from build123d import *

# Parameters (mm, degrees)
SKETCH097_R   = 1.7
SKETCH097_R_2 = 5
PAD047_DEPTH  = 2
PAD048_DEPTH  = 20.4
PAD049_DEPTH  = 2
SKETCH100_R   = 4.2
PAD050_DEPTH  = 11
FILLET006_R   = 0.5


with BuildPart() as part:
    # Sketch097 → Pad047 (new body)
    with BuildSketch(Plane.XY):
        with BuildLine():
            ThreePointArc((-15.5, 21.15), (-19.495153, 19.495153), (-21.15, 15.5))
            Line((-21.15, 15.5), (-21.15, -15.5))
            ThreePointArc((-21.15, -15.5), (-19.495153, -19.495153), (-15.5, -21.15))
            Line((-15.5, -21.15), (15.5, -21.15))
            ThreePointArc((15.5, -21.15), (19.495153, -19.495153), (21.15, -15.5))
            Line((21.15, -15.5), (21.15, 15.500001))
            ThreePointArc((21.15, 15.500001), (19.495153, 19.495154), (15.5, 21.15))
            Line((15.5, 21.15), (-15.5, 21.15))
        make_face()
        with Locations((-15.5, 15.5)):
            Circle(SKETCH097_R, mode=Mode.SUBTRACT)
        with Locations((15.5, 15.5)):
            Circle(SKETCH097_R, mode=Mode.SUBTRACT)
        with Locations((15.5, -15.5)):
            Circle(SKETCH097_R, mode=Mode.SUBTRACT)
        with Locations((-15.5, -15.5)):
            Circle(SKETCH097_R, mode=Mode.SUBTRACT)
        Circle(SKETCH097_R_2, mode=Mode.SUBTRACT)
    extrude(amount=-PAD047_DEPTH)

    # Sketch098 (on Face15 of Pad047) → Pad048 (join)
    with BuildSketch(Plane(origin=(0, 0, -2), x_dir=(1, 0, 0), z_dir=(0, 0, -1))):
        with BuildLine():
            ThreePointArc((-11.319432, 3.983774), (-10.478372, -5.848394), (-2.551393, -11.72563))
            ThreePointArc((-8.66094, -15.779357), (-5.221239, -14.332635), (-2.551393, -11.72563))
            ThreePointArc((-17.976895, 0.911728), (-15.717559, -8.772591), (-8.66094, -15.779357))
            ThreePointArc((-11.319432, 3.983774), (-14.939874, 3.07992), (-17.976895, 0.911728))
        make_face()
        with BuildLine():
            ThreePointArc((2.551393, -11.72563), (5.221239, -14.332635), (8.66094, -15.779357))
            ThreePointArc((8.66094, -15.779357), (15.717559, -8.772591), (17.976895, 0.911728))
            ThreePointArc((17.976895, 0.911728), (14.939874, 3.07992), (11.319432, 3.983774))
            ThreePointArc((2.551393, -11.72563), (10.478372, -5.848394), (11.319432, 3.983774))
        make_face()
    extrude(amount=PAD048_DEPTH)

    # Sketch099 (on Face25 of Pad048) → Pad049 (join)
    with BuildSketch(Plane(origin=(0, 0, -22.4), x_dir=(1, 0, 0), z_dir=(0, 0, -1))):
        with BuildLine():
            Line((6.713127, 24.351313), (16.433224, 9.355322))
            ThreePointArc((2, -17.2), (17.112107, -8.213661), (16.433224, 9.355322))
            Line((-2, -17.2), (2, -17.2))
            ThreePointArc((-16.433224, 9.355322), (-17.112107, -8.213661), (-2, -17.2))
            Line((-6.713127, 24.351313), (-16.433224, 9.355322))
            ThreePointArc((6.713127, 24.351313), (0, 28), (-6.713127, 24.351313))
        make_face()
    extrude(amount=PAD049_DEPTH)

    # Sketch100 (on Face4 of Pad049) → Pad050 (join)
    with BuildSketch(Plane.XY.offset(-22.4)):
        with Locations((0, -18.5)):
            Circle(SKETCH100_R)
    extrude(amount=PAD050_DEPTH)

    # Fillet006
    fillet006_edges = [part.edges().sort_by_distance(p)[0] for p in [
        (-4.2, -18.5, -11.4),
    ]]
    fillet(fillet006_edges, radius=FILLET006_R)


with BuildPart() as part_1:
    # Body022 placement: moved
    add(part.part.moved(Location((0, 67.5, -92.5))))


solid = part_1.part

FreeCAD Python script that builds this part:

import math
import FreeCAD as App
import Part
import Sketcher

V = App.Vector


def edges_at(feature, points):
    """Names of the edges that pass closest to the given points."""
    edges = feature.Shape.Edges
    near = lambda p: min(range(len(edges)), key=lambda i: edges[i].distToShape(Part.Vertex(*p))[0])
    return sorted({f"Edge{near(p) + 1}" for p in points})

doc = App.newDocument("Part")
body = doc.addObject("PartDesign::Body", "Body")

# Sketch on XY plane
sketch1 = doc.addObject("Sketcher::SketchObject", "Sketch")
body.addObject(sketch1)
sketch1.AttachmentSupport = (doc.XY_Plane, [""])
sketch1.MapMode = "FlatFace"
sketch1.addGeometry(Part.ArcOfCircle(Part.Circle(V(-15.5, 15.5, 0), V(0, 0, 1), 5.7), math.radians(90), math.radians(180)), False)
sketch1.addGeometry(Part.LineSegment(V(-21.1, 15.5, 0), V(-21.1, -15.5, 0)), False)
sketch1.addGeometry(Part.ArcOfCircle(Part.Circle(V(-15.5, -15.5, 0), V(0, 0, 1), 5.7), math.radians(-180), math.radians(-90)), False)
sketch1.addGeometry(Part.LineSegment(V(-15.5, -21.1, 0), V(15.5, -21.1, 0)), False)
sketch1.addGeometry(Part.ArcOfCircle(Part.Circle(V(15.5, -15.5, 0), V(0, 0, 1), 5.7), math.radians(-90), math.radians(0)), False)
sketch1.addGeometry(Part.LineSegment(V(21.1, -15.5, 0), V(21.1, 15.5, 0)), False)
sketch1.addGeometry(Part.ArcOfCircle(Part.Circle(V(15.5, 15.5, 0), V(0, 0, 1), 5.6), math.radians(0), math.radians(90)), False)
sketch1.addGeometry(Part.LineSegment(V(15.5, 21.1, 0), V(-15.5, 21.1, 0)), False)
sketch1.addGeometry(Part.Circle(V(-15.5, -15.5, 0), V(0, 0, 1), 1.7), False)
sketch1.addGeometry(Part.Circle(V(15.5, -15.5, 0), V(0, 0, 1), 1.7), False)
sketch1.addGeometry(Part.Circle(V(-15.5, 15.5, 0), V(0, 0, 1), 1.7), False)
sketch1.addGeometry(Part.Circle(V(0, 0, 0), V(0, 0, 1), 5), False)
sketch1.addGeometry(Part.Circle(V(15.5, 15.5, 0), V(0, 0, 1), 1.7), False)
sketch1.addConstraint(Sketcher.Constraint("Tangent", 0, 2, 1, 1))
sketch1.addConstraint(Sketcher.Constraint("Tangent", 1, 2, 2, 1))
sketch1.addConstraint(Sketcher.Constraint("Tangent", 2, 2, 3, 1))
sketch1.addConstraint(Sketcher.Constraint("Tangent", 3, 2, 4, 1))
sketch1.addConstraint(Sketcher.Constraint("Tangent", 4, 2, 5, 1))
sketch1.addConstraint(Sketcher.Constraint("Tangent", 5, 2, 6, 1))
sketch1.addConstraint(Sketcher.Constraint("Tangent", 6, 2, 7, 1))
sketch1.addConstraint(Sketcher.Constraint("Tangent", 7, 2, 0, 1))
sketch1.addConstraint(Sketcher.Constraint("Vertical", 1))
sketch1.addConstraint(Sketcher.Constraint("Horizontal", 3))
sketch1.addConstraint(Sketcher.Constraint("Vertical", 5))
sketch1.addConstraint(Sketcher.Constraint("Horizontal", 7))
sketch1.addConstraint(Sketcher.Constraint("Coincident", 11, 3, -1, 1))
sketch1.addConstraint(Sketcher.Constraint("Coincident", 8, 3, 2, 3))
sketch1.addConstraint(Sketcher.Constraint("Coincident", 9, 3, 4, 3))
sketch1.addConstraint(Sketcher.Constraint("Coincident", 10, 3, 0, 3))
sketch1.addConstraint(Sketcher.Constraint("Coincident", 12, 3, 6, 3))
sketch1.addConstraint(Sketcher.Constraint("Equal", 0, 2))
sketch1.addConstraint(Sketcher.Constraint("Equal", 2, 4))
sketch1.addConstraint(Sketcher.Constraint("Equal", 4, 6))
sketch1.addConstraint(Sketcher.Constraint("Equal", 8, 9))
sketch1.addConstraint(Sketcher.Constraint("Equal", 9, 10))
sketch1.addConstraint(Sketcher.Constraint("Equal", 10, 12))
sketch1.addConstraint(Sketcher.Constraint("Symmetric", 0, 3, 4, 3, -1, 1))
sketch1.addConstraint(Sketcher.Constraint("Equal", 7, 1))
sketch1.addConstraint(Sketcher.Constraint("Diameter", 11, 10.0))
sketch1.addConstraint(Sketcher.Constraint("Diameter", 8, 3.4))
sketch1.addConstraint(Sketcher.Constraint("DistanceX", 3, 1, 3, 2, 31.0))
sketch1.addConstraint(Sketcher.Constraint("Radius", 0, 5.650001))
pad1 = doc.addObject("PartDesign::Pad", "Pad")
body.addObject(pad1)
pad1.Profile = sketch1
pad1.Length = 2
pad1.Reversed = True

# Sketch on XY plane
sketch2 = doc.addObject("Sketcher::SketchObject", "Sketch001")
body.addObject(sketch2)
sketch2.AttachmentSupport = (doc.XY_Plane, [""])
sketch2.MapMode = "FlatFace"
sketch2.AttachmentOffset = App.Placement(V(0, 0, -2), App.Rotation())
sketch2.addGeometry(Part.ArcOfCircle(Part.Circle(V(0, 0, 0), V(0, 0, 1), 12), math.radians(102), math.radians(199)), False)
sketch2.addGeometry(Part.ArcOfCircle(Part.Circle(V(-11, 6, 0), V(0, 0, 1), 10), math.radians(-136), math.radians(-93)), False)
sketch2.addGeometry(Part.ArcOfCircle(Part.Circle(V(0, 0, 0), V(0, 0, 1), 18), math.radians(119), math.radians(183)), False)
sketch2.addGeometry(Part.ArcOfCircle(Part.Circle(V(-11, 6, 0), V(0, 0, 1), 10), math.radians(35), math.radians(78)), False)
sketch2.addGeometry(Part.ArcOfCircle(Part.Circle(V(11, 6, 0), V(0, 0, 1), 10), math.radians(102), math.radians(145)), False)
sketch2.addGeometry(Part.ArcOfCircle(Part.Circle(V(0, 0, 0), V(0, 0, 1), 18), math.radians(-3), math.radians(61)), False)
sketch2.addGeometry(Part.ArcOfCircle(Part.Circle(V(11, 6, 0), V(0, 0, 1), 10), math.radians(-87), math.radians(-44)), False)
sketch2.addGeometry(Part.ArcOfCircle(Part.Circle(V(0, 0, 0), V(0, 0, 1), 12), math.radians(-19), math.radians(78)), False)
sketch2.addConstraint(Sketcher.Constraint("Coincident", 0, 2, 1, 2))
sketch2.addConstraint(Sketcher.Constraint("Coincident", 1, 1, 2, 2))
sketch2.addConstraint(Sketcher.Constraint("Coincident", 2, 1, 3, 2))
sketch2.addConstraint(Sketcher.Constraint("Coincident", 3, 1, 0, 1))
sketch2.addConstraint(Sketcher.Constraint("Coincident", 4, 1, 5, 2))
sketch2.addConstraint(Sketcher.Constraint("Coincident", 5, 1, 6, 2))
sketch2.addConstraint(Sketcher.Constraint("Coincident", 6, 1, 7, 1))
sketch2.addConstraint(Sketcher.Constraint("Coincident", 7, 2, 4, 2))
sketch2.addConstraint(Sketcher.Constraint("Coincident", 0, 3, -1, 1))
sketch2.addConstraint(Sketcher.Constraint("Coincident", 2, 3, -1, 1))
sketch2.addConstraint(Sketcher.Constraint("Coincident", 5, 3, -1, 1))
sketch2.addConstraint(Sketcher.Constraint("Coincident", 7, 3, -1, 1))
sketch2.addConstraint(Sketcher.Constraint("Coincident", 3, 3, 1, 3))
sketch2.addConstraint(Sketcher.Constraint("Coincident", 6, 3, 4, 3))
sketch2.addConstraint(Sketcher.Constraint("Equal", 3, 4))
sketch2.addConstraint(Sketcher.Constraint("Equal", 2, 5))
sketch2.addConstraint(Sketcher.Constraint("Equal", 1, 6))
sketch2.addConstraint(Sketcher.Constraint("Equal", 0, 7))
sketch2.addConstraint(Sketcher.Constraint("Symmetric", 1, 3, 4, 3, -2))
sketch2.addConstraint(Sketcher.Constraint("Radius", 0, 12.000001))
sketch2.addConstraint(Sketcher.Constraint("DistanceY", 2, 3, 1, 3, 6.000001))
sketch2.addConstraint(Sketcher.Constraint("DistanceX", 1, 3, -1, 1, 10.749999))
sketch2.addConstraint(Sketcher.Constraint("Radius", 1, 10.000003))
sketch2.addConstraint(Sketcher.Constraint("Radius", 2, 17.999997))
sketch2.addConstraint(Sketcher.Constraint("Radius", 3, 9.999994))
pad2 = doc.addObject("PartDesign::Pad", "Pad001")
body.addObject(pad2)
pad2.Profile = sketch2
pad2.Length = 20.4
pad2.Reversed = True

# Sketch on XY plane
sketch3 = doc.addObject("Sketcher::SketchObject", "Sketch002")
body.addObject(sketch3)
sketch3.AttachmentSupport = (doc.XY_Plane, [""])
sketch3.MapMode = "FlatFace"
sketch3.AttachmentOffset = App.Placement(V(0, 0, -22.4), App.Rotation())
sketch3.addGeometry(Part.LineSegment(V(16.4, -9.4, 0), V(6.7, -24.4, 0)), False)
sketch3.addGeometry(Part.ArcOfCircle(Part.Circle(V(0, -20, 0), V(0, 0, 1), 8), math.radians(-147), math.radians(-33)), False)
sketch3.addGeometry(Part.LineSegment(V(-6.7, -24.4, 0), V(-16.4, -9.4, 0)), False)
sketch3.addGeometry(Part.ArcOfCircle(Part.Circle(V(-2, 0, 0), V(0, 0, 1), 17.2), math.radians(90), math.radians(213)), False)
sketch3.addGeometry(Part.LineSegment(V(-2, 17.2, 0), V(2, 17.2, 0)), False)
sketch3.addGeometry(Part.ArcOfCircle(Part.Circle(V(2, 0, 0), V(0, 0, 1), 17.2), math.radians(-33), math.radians(90)), False)
sketch3.addConstraint(Sketcher.Constraint("Tangent", 0, 2, 1, 2))
sketch3.addConstraint(Sketcher.Constraint("Tangent", 1, 1, 2, 1))
sketch3.addConstraint(Sketcher.Constraint("Tangent", 2, 2, 3, 2))
sketch3.addConstraint(Sketcher.Constraint("Tangent", 3, 1, 4, 1))
sketch3.addConstraint(Sketcher.Constraint("Tangent", 4, 2, 5, 2))
sketch3.addConstraint(Sketcher.Constraint("Tangent", 5, 1, 0, 1))
sketch3.addConstraint(Sketcher.Constraint("Horizontal", 4))
sketch3.addConstraint(Sketcher.Constraint("Equal", 3, 5))
sketch3.addConstraint(Sketcher.Constraint("Symmetric", 3, 3, 5, 3, -1, 1))
sketch3.addConstraint(Sketcher.Constraint("PointOnObject", 1, 3, -2))
sketch3.addConstraint(Sketcher.Constraint("Radius", 1, 8.0))
sketch3.addConstraint(Sketcher.Constraint("Radius", 3, 17.2))
sketch3.addConstraint(Sketcher.Constraint("DistanceX", 4, 1, 4, 2, 4.0))
sketch3.addConstraint(Sketcher.Constraint("DistanceY", 1, 3, -1, 1, 20.0))
pad3 = doc.addObject("PartDesign::Pad", "Pad002")
body.addObject(pad3)
pad3.Profile = sketch3
pad3.Length = 2
pad3.Reversed = True

# Sketch on XY plane
sketch4 = doc.addObject("Sketcher::SketchObject", "Sketch003")
body.addObject(sketch4)
sketch4.AttachmentSupport = (doc.XY_Plane, [""])
sketch4.MapMode = "FlatFace"
sketch4.AttachmentOffset = App.Placement(V(0, 0, -22.4), App.Rotation())
sketch4.addGeometry(Part.Circle(V(0, -18.5, 0), V(0, 0, 1), 4.2), False)
sketch4.addConstraint(Sketcher.Constraint("PointOnObject", 0, 3, -2))
sketch4.addConstraint(Sketcher.Constraint("Diameter", 0, 8.4))
sketch4.addConstraint(Sketcher.Constraint("DistanceY", 0, 3, -1, 1, 18.5))
pad4 = doc.addObject("PartDesign::Pad", "Pad003")
body.addObject(pad4)
pad4.Profile = sketch4
pad4.Length = 11
doc.recompute()

fillet = doc.addObject("PartDesign::Fillet", "Fillet")
body.addObject(fillet)
fillet.Base = (pad4, edges_at(pad4, [(-4.2, -18.5, -11.4)]))
fillet.Radius = 0.5
body2 = doc.addObject("PartDesign::Body", "Body001")
doc.recompute()

body.Placement = App.Placement(V(0, 67.5, -92.5), App.Rotation(V(0, 0, 1), 0))
boolean = doc.addObject("PartDesign::Boolean", "Boolean")
body2.addObject(boolean)
boolean.Type = "Fuse"
boolean.addObjects([body])

doc.recompute()
